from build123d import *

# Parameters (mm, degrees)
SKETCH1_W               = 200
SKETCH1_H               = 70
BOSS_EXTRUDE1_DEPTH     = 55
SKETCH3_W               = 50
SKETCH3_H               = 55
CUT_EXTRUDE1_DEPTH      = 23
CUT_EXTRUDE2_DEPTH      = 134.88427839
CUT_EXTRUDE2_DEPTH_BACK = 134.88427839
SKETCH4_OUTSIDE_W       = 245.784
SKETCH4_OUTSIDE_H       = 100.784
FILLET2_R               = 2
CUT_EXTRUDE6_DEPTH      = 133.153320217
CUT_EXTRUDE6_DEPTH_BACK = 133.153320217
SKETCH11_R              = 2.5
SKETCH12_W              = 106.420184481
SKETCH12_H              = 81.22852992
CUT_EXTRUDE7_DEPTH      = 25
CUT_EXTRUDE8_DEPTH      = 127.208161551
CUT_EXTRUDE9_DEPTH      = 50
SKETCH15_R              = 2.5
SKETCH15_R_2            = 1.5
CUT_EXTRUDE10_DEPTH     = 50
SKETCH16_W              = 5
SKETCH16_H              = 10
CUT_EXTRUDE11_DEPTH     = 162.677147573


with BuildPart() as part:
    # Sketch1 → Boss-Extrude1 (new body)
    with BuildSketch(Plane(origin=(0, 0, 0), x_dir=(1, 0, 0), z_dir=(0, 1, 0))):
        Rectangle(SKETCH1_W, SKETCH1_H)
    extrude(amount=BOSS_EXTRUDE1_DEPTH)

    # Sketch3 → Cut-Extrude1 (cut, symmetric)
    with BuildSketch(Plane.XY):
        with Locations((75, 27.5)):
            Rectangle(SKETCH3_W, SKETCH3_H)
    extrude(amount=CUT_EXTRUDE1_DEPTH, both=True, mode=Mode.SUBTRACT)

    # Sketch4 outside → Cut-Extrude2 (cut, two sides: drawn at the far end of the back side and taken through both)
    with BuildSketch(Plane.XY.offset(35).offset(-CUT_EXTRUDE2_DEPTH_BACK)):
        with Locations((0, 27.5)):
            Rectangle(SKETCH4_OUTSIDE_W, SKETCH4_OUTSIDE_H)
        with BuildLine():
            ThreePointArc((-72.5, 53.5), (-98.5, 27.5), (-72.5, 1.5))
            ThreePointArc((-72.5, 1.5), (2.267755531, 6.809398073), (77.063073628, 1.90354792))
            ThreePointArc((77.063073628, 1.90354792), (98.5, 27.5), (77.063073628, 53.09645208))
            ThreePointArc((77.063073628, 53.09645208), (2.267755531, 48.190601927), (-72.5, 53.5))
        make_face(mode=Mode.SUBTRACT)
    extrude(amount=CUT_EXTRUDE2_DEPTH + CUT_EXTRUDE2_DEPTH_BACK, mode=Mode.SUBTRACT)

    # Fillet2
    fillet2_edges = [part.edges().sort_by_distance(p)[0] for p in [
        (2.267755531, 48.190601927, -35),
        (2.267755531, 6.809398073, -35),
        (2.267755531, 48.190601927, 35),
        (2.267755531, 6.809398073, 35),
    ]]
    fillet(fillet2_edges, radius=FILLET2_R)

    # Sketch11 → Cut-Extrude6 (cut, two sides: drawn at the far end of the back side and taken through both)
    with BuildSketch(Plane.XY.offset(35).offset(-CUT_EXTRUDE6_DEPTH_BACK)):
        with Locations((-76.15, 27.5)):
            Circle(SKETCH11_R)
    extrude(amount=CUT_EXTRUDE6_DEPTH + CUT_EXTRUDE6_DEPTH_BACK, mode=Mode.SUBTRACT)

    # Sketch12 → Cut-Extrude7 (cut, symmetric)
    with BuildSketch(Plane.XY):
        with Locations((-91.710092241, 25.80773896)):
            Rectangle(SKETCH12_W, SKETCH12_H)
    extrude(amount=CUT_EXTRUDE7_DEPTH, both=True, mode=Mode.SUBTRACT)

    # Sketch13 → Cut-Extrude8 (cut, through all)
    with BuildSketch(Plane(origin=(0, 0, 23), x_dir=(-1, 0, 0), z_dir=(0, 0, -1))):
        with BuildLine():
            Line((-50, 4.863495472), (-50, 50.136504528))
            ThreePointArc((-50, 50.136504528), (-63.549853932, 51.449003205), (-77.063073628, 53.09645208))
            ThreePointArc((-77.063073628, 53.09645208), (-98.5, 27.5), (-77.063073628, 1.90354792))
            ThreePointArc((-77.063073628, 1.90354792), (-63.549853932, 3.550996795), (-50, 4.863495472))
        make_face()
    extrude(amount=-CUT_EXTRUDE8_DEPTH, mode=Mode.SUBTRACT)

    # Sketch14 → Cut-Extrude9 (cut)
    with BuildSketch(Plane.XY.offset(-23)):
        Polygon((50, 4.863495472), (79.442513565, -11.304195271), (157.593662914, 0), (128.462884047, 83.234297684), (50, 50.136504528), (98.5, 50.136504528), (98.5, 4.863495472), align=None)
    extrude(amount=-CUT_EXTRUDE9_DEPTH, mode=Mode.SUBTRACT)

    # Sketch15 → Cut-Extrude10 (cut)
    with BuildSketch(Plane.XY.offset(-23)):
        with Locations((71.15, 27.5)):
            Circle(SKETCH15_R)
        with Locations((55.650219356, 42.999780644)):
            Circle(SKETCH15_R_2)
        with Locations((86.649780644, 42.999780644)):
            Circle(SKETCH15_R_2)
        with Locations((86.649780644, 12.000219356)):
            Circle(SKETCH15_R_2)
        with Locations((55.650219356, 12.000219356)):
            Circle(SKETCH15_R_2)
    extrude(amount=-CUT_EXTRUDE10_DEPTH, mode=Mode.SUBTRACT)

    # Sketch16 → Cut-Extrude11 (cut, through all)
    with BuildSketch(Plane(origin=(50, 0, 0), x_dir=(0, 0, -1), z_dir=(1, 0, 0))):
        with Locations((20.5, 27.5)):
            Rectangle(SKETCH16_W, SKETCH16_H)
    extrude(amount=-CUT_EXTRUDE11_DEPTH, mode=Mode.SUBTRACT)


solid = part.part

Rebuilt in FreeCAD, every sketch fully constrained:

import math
import FreeCAD as App
import Part
import Sketcher


def edges_at(feature, points):
    """Names of the edges that pass closest to the given points."""
    edges = feature.Shape.Edges
    near = lambda p: min(range(len(edges)), key=lambda i: edges[i].distToShape(Part.Vertex(*p))[0])
    return sorted({f"Edge{near(p) + 1}" for p in points})


def add_polygon(sketch, points):
    """Adds a closed chain of lines whose ends are joined by coincident constraints."""
    first, n = sketch.GeometryCount, len(points)
    for a, b in zip(points, points[1:] + points[:1]):
        sketch.addGeometry(Part.LineSegment(App.Vector(*a, 0), App.Vector(*b, 0)), False)
    for i in range(n):
        sketch.addConstraint(Sketcher.Constraint("Coincident", first + i, 2, first + (i + 1) % n, 1))

doc = App.newDocument("Part")
body = doc.addObject("PartDesign::Body", "Body")

# Sketch on XZ plane
sketch1 = body.newObject("Sketcher::SketchObject", "Sketch")
sketch1.AttachmentSupport = (doc.getObject("XZ_Plane"), [""])
sketch1.MapMode = "FlatFace"
add_polygon(sketch1, [(-100, -35), (-100, 35), (100, 35), (100, -35)])  # lines 0-3
sketch1.addConstraint([
    Sketcher.Constraint("Vertical", 0),
    Sketcher.Constraint("Horizontal", 1),
    Sketcher.Constraint("Vertical", 2),
    Sketcher.Constraint("Horizontal", 3),
    Sketcher.Constraint("Symmetric", 0, 2, 2, 2, -1, 1),
    Sketcher.Constraint("DistanceX", 1, 1, 1, 2, 200.0),
    Sketcher.Constraint("DistanceY", 0, 1, 0, 2, 70.0),
])
pad1 = body.newObject("PartDesign::Pad", "Pad")
pad1.Profile = sketch1
pad1.Length = 55
pad1.Reversed = True

# Sketch on XY plane
sketch2 = body.newObject("Sketcher::SketchObject", "Sketch001")
sketch2.AttachmentSupport = (doc.getObject("XY_Plane"), [""])
sketch2.MapMode = "FlatFace"
add_polygon(sketch2, [(50, 55), (50, 0), (100, 0), (100, 55)])  # lines 0-3
sketch2.addConstraint([
    Sketcher.Constraint("Vertical", 0),
    Sketcher.Constraint("Horizontal", 1),
    Sketcher.Constraint("Vertical", 2),
    Sketcher.Constraint("Horizontal", 3),
    Sketcher.Constraint("PointOnObject", 0, 2, -1),
    Sketcher.Constraint("DistanceX", 1, 1, 1, 2, 50.0),
    Sketcher.Constraint("DistanceY", 0, 2, 0, 1, 55.0),
    Sketcher.Constraint("DistanceX", -1, 1, 0, 2, 50.0),
])
pocket1 = body.newObject("PartDesign::Pocket", "Pocket")
pocket1.Profile = sketch2
pocket1.Length = 46
pocket1.Midplane = True

# Sketch on XY plane
sketch3 = body.newObject("Sketcher::SketchObject", "Sketch002")
sketch3.AttachmentSupport = (doc.getObject("XY_Plane"), [""])
sketch3.MapMode = "FlatFace"
sketch3.AttachmentOffset = App.Placement(App.Vector(0, 0, 35), App.Rotation())
add_polygon(sketch3, [(-123, 78), (-123, -23), (123, -23), (123, 78)])  # lines 0-3
sketch3.addGeometry(Part.ArcOfCircle(Part.Circle(App.Vector(-72, 28, 0), App.Vector(0, 0, 1), 26), math.radians(90), math.radians(270)), False)  # 4
sketch3.addGeometry(Part.ArcOfCircle(Part.Circle(App.Vector(4, 598, 0), App.Vector(0, 0, 1), 550), math.radians(-97.97), math.radians(-82.34)), False)  # 5
sketch3.addGeometry(Part.ArcOfCircle(Part.Circle(App.Vector(72, 28, 0), App.Vector(0, 0, 1), 26), math.radians(-80), math.radians(80)), False)  # 6
sketch3.addGeometry(Part.ArcOfCircle(Part.Circle(App.Vector(4, -543, 0), App.Vector(0, 0, 1), 550), math.radians(82.34), math.radians(97.97)), False)  # 7
sketch3.addConstraint([
    Sketcher.Constraint("Coincident", 4, 1, 5, 1),
    Sketcher.Constraint("Coincident", 5, 2, 6, 2),
    Sketcher.Constraint("Coincident", 6, 1, 7, 1),
    Sketcher.Constraint("Coincident", 7, 2, 4, 2),
    Sketcher.Constraint("Vertical", 0),
    Sketcher.Constraint("Horizontal", 1),
    Sketcher.Constraint("Vertical", 2),
    Sketcher.Constraint("Horizontal", 3),
    Sketcher.Constraint("Equal", 4, 6),
    Sketcher.Constraint("Equal", 5, 7),
    Sketcher.Constraint("Symmetric", 4, 3, 6, 3, -2),
    Sketcher.Constraint("Vertical", 5, 3, 7, 3),
    Sketcher.Constraint("Vertical", 5, 2, 6, 1),
    Sketcher.Constraint("Radius", 4, 26.0),
    Sketcher.Constraint("Radius", 5, 550.0),
    Sketcher.Constraint("DistanceX", 4, 3, 6, 3, 145.0),
    Sketcher.Constraint("DistanceX", 4, 1, 6, 3, 145.0),
    Sketcher.Constraint("DistanceY", -1, 1, 4, 3, 27.5),
    Sketcher.Constraint("DistanceX", 1, 1, 1, 2, 245.784),
    Sketcher.Constraint("DistanceY", 0, 2, 0, 1, 100.784),
    Sketcher.Constraint("DistanceX", 0, 2, -1, 1, 122.892),
    Sketcher.Constraint("DistanceY", 0, 2, -1, 1, 22.892),
    Sketcher.Constraint("DistanceY", -1, 1, 5, 3, 598.1886),
])
pocket2 = body.newObject("PartDesign::Pocket", "Pocket001")
pocket2.Profile = sketch3
pocket2.Type = "ThroughAll"
pocket2.Midplane = True
doc.recompute()

fillet = body.newObject("PartDesign::Fillet", "Fillet")
fillet.Base = (pocket2, edges_at(pocket2, [
    (2.268, 48.191, -35),
    (2.268, 6.809, -35),
    (2.268, 48.191, 35),
    (2.268, 6.809, 35),
]))
fillet.Radius = 2

# Sketch on XY plane
sketch4 = body.newObject("Sketcher::SketchObject", "Sketch003")
sketch4.AttachmentSupport = (doc.getObject("XY_Plane"), [""])
sketch4.MapMode = "FlatFace"
sketch4.AttachmentOffset = App.Placement(App.Vector(0, 0, 35), App.Rotation())
sketch4.addGeometry(Part.Circle(App.Vector(-76.2, 27.5, 0), App.Vector(0, 0, 1), 2.5), False)
sketch4.addConstraint([
    Sketcher.Constraint("Diameter", 0, 5.0),
    Sketcher.Constraint("DistanceY", -1, 1, 0, 3, 27.5),
    Sketcher.Constraint("DistanceX", 0, 3, -1, 1, 76.15),
])
pocket3 = body.newObject("PartDesign::Pocket", "Pocket002")
pocket3.Profile = sketch4
pocket3.Type = "ThroughAll"
pocket3.Midplane = True

# Sketch on XY plane
sketch5 = body.newObject("Sketcher::SketchObject", "Sketch004")
sketch5.AttachmentSupport = (doc.getObject("XY_Plane"), [""])
sketch5.MapMode = "FlatFace"
add_polygon(sketch5, [(-145, 66), (-145, -15), (-38, -15), (-38, 66)])  # lines 0-3
sketch5.addConstraint([
    Sketcher.Constraint("Vertical", 0),
    Sketcher.Constraint("Horizontal", 1),
    Sketcher.Constraint("Vertical", 2),
    Sketcher.Constraint("Horizontal", 3),
    Sketcher.Constraint("DistanceX", 1, 2, -1, 1, 38.5),
    Sketcher.Constraint("DistanceY", 0, 2, 0, 1, 81.22853),
    Sketcher.Constraint("DistanceX", 1, 1, 1, 2, 106.420184),
    Sketcher.Constraint("DistanceY", 0, 2, -1, 1, 14.806526),
])
pocket4 = body.newObject("PartDesign::Pocket", "Pocket003")
pocket4.Profile = sketch5
pocket4.Length = 50
pocket4.Midplane = True

# Sketch on XY plane
sketch6 = body.newObject("Sketcher::SketchObject", "Sketch005")
sketch6.AttachmentSupport = (doc.getObject("XY_Plane"), [""])
sketch6.MapMode = "FlatFace"
sketch6.AttachmentOffset = App.Placement(App.Vector(0, 0, 23), App.Rotation())
sketch6.addGeometry([
    Part.LineSegment(App.Vector(50, 5, 0), App.Vector(50, 50, 0)),
    Part.ArcOfCircle(Part.Circle(App.Vector(4, 598, 0), App.Vector(0, 0, 1), 550), math.radians(-85.18), math.radians(-82.34)),
    Part.ArcOfCircle(Part.Circle(App.Vector(72, 28, 0), App.Vector(0, 0, 1), 26), math.radians(-80), math.radians(80)),
    Part.ArcOfCircle(Part.Circle(App.Vector(4, -543, 0), App.Vector(0, 0, 1), 550), math.radians(82.34), math.radians(85.18)),
], False)
sketch6.addConstraint([
    Sketcher.Constraint("Coincident", 0, 2, 1, 1),
    Sketcher.Constraint("Coincident", 1, 2, 2, 2),
    Sketcher.Constraint("Coincident", 2, 1, 3, 1),
    Sketcher.Constraint("Coincident", 3, 2, 0, 1),
    Sketcher.Constraint("Vertical", 0),
    Sketcher.Constraint("Equal", 1, 3),
    Sketcher.Constraint("Vertical", 1, 3, 3, 3),
    Sketcher.Constraint("Vertical", 1, 2, 2, 1),
    Sketcher.Constraint("Radius", 1, 550.000001),
    Sketcher.Constraint("Radius", 2, 26.0),
    Sketcher.Constraint("DistanceX", -1, 1, 0, 2, 50.0),
    Sketcher.Constraint("DistanceX", -1, 1, 2, 3, 72.5),
    Sketcher.Constraint("DistanceY", -1, 1, 2, 3, 27.5),
    Sketcher.Constraint("DistanceY", 0, 1, 0, 2, 45.273009),
    Sketcher.Constraint("DistanceY", -1, 1, 1, 3, 598.188601),
])
pocket5 = body.newObject("PartDesign::Pocket", "Pocket004")
pocket5.Profile = sketch6
pocket5.Type = "ThroughAll"
pocket5.Reversed = True

# Sketch on XY plane
sketch7 = body.newObject("Sketcher::SketchObject", "Sketch006")
sketch7.AttachmentSupport = (doc.getObject("XY_Plane"), [""])
sketch7.MapMode = "FlatFace"
sketch7.AttachmentOffset = App.Placement(App.Vector(0, 0, -23), App.Rotation())
add_polygon(sketch7, [(50, 5), (79, -11), (158, 0), (128, 83), (50, 50), (98, 50), (98, 5)])  # lines 0-6
sketch7.addConstraint([
    Sketcher.Constraint("Horizontal", 4),
    Sketcher.Constraint("Vertical", 5),
    Sketcher.Constraint("Horizontal", 6),
    Sketcher.Constraint("PointOnObject", 1, 2, -1),
    Sketcher.Constraint("Vertical", 3, 2, 6, 2),
    Sketcher.Constraint("DistanceX", 4, 1, 4, 2, 48.5),
    Sketcher.Constraint("DistanceX", -1, 1, 3, 2, 50.0),
    Sketcher.Constraint("DistanceY", 5, 2, 5, 1, 45.273009),
    Sketcher.Constraint("DistanceY", 0, 2, 3, 2, 61.4407),
    Sketcher.Constraint("Distance", 0, 33.58952),
    Sketcher.Constraint("Distance", 3, 85.158018),
    Sketcher.Constraint("DistanceX", 0, 2, 1, 2, 78.151149),
    Sketcher.Constraint("DistanceX", 2, 2, 1, 2, 29.130779),
    Sketcher.Constraint("Distance", 1, 78.964467),
])
pocket6 = body.newObject("PartDesign::Pocket", "Pocket005")
pocket6.Profile = sketch7
pocket6.Length = 50

# Sketch on XY plane
sketch8 = body.newObject("Sketcher::SketchObject", "Sketch007")
sketch8.AttachmentSupport = (doc.getObject("XY_Plane"), [""])
sketch8.MapMode = "FlatFace"
sketch8.AttachmentOffset = App.Placement(App.Vector(0, 0, -23), App.Rotation())
sketch8.addGeometry([
    Part.Circle(App.Vector(71.2, 27.5, 0), App.Vector(0, 0, 1), 2.5),  # 0
    Part.Circle(App.Vector(55.7, 43, 0), App.Vector(0, 0, 1), 1.5),  # 1
    Part.Circle(App.Vector(86.6, 43, 0), App.Vector(0, 0, 1), 1.5),  # 2
    Part.Circle(App.Vector(86.6, 12, 0), App.Vector(0, 0, 1), 1.5),  # 3
    Part.Circle(App.Vector(55.7, 12, 0), App.Vector(0, 0, 1), 1.5),  # 4
], False)
sketch8.addConstraint([
    Sketcher.Constraint("Equal", 1, 2),
    Sketcher.Constraint("Equal", 2, 3),
    Sketcher.Constraint("Equal", 3, 4),
    Sketcher.Constraint("Horizontal", 1, 3, 2, 3),
    Sketcher.Constraint("Horizontal", 3, 3, 4, 3),
    Sketcher.Constraint("Vertical", 2, 3, 3, 3),
    Sketcher.Constraint("Vertical", 1, 3, 4, 3),
    Sketcher.Constraint("Diameter", 0, 5.0),
    Sketcher.Constraint("Diameter", 1, 3.0),
    Sketcher.Constraint("DistanceY", -1, 1, 0, 3, 27.5),
    Sketcher.Constraint("DistanceX", -1, 1, 0, 3, 71.15),
    Sketcher.Constraint("DistanceX", -1, 1, 1, 3, 55.650219),
    Sketcher.Constraint("DistanceY", -1, 1, 1, 3, 42.999781),
    Sketcher.Constraint("DistanceX", -1, 1, 2, 3, 86.649781),
    Sketcher.Constraint("DistanceY", -1, 1, 3, 3, 12.000219),
])
pocket7 = body.newObject("PartDesign::Pocket", "Pocket006")
pocket7.Profile = sketch8
pocket7.Length = 50

# Sketch on YZ plane
sketch9 = body.newObject("Sketcher::SketchObject", "Sketch008")
sketch9.AttachmentSupport = (doc.getObject("YZ_Plane"), [""])
sketch9.MapMode = "FlatFace"
sketch9.AttachmentOffset = App.Placement(App.Vector(0, 0, 50), App.Rotation())
add_polygon(sketch9, [(32, -18), (22, -18), (22, -23), (32, -23)])  # lines 0-3
sketch9.addConstraint([
    Sketcher.Constraint("Horizontal", 0),
    Sketcher.Constraint("Vertical", 1),
    Sketcher.Constraint("Horizontal", 2),
    Sketcher.Constraint("Vertical", 3),
    Sketcher.Constraint("DistanceX", 0, 2, 0, 1, 10.0),
    Sketcher.Constraint("DistanceY", 1, 2, 1, 1, 5.0),
    Sketcher.Constraint("DistanceY", 0, 2, -1, 1, 18.0),
    Sketcher.Constraint("DistanceX", -1, 1, 0, 2, 22.5),
])
pocket8 = body.newObject("PartDesign::Pocket", "Pocket007")
pocket8.Profile = sketch9
pocket8.Type = "ThroughAll"

doc.recompute()
